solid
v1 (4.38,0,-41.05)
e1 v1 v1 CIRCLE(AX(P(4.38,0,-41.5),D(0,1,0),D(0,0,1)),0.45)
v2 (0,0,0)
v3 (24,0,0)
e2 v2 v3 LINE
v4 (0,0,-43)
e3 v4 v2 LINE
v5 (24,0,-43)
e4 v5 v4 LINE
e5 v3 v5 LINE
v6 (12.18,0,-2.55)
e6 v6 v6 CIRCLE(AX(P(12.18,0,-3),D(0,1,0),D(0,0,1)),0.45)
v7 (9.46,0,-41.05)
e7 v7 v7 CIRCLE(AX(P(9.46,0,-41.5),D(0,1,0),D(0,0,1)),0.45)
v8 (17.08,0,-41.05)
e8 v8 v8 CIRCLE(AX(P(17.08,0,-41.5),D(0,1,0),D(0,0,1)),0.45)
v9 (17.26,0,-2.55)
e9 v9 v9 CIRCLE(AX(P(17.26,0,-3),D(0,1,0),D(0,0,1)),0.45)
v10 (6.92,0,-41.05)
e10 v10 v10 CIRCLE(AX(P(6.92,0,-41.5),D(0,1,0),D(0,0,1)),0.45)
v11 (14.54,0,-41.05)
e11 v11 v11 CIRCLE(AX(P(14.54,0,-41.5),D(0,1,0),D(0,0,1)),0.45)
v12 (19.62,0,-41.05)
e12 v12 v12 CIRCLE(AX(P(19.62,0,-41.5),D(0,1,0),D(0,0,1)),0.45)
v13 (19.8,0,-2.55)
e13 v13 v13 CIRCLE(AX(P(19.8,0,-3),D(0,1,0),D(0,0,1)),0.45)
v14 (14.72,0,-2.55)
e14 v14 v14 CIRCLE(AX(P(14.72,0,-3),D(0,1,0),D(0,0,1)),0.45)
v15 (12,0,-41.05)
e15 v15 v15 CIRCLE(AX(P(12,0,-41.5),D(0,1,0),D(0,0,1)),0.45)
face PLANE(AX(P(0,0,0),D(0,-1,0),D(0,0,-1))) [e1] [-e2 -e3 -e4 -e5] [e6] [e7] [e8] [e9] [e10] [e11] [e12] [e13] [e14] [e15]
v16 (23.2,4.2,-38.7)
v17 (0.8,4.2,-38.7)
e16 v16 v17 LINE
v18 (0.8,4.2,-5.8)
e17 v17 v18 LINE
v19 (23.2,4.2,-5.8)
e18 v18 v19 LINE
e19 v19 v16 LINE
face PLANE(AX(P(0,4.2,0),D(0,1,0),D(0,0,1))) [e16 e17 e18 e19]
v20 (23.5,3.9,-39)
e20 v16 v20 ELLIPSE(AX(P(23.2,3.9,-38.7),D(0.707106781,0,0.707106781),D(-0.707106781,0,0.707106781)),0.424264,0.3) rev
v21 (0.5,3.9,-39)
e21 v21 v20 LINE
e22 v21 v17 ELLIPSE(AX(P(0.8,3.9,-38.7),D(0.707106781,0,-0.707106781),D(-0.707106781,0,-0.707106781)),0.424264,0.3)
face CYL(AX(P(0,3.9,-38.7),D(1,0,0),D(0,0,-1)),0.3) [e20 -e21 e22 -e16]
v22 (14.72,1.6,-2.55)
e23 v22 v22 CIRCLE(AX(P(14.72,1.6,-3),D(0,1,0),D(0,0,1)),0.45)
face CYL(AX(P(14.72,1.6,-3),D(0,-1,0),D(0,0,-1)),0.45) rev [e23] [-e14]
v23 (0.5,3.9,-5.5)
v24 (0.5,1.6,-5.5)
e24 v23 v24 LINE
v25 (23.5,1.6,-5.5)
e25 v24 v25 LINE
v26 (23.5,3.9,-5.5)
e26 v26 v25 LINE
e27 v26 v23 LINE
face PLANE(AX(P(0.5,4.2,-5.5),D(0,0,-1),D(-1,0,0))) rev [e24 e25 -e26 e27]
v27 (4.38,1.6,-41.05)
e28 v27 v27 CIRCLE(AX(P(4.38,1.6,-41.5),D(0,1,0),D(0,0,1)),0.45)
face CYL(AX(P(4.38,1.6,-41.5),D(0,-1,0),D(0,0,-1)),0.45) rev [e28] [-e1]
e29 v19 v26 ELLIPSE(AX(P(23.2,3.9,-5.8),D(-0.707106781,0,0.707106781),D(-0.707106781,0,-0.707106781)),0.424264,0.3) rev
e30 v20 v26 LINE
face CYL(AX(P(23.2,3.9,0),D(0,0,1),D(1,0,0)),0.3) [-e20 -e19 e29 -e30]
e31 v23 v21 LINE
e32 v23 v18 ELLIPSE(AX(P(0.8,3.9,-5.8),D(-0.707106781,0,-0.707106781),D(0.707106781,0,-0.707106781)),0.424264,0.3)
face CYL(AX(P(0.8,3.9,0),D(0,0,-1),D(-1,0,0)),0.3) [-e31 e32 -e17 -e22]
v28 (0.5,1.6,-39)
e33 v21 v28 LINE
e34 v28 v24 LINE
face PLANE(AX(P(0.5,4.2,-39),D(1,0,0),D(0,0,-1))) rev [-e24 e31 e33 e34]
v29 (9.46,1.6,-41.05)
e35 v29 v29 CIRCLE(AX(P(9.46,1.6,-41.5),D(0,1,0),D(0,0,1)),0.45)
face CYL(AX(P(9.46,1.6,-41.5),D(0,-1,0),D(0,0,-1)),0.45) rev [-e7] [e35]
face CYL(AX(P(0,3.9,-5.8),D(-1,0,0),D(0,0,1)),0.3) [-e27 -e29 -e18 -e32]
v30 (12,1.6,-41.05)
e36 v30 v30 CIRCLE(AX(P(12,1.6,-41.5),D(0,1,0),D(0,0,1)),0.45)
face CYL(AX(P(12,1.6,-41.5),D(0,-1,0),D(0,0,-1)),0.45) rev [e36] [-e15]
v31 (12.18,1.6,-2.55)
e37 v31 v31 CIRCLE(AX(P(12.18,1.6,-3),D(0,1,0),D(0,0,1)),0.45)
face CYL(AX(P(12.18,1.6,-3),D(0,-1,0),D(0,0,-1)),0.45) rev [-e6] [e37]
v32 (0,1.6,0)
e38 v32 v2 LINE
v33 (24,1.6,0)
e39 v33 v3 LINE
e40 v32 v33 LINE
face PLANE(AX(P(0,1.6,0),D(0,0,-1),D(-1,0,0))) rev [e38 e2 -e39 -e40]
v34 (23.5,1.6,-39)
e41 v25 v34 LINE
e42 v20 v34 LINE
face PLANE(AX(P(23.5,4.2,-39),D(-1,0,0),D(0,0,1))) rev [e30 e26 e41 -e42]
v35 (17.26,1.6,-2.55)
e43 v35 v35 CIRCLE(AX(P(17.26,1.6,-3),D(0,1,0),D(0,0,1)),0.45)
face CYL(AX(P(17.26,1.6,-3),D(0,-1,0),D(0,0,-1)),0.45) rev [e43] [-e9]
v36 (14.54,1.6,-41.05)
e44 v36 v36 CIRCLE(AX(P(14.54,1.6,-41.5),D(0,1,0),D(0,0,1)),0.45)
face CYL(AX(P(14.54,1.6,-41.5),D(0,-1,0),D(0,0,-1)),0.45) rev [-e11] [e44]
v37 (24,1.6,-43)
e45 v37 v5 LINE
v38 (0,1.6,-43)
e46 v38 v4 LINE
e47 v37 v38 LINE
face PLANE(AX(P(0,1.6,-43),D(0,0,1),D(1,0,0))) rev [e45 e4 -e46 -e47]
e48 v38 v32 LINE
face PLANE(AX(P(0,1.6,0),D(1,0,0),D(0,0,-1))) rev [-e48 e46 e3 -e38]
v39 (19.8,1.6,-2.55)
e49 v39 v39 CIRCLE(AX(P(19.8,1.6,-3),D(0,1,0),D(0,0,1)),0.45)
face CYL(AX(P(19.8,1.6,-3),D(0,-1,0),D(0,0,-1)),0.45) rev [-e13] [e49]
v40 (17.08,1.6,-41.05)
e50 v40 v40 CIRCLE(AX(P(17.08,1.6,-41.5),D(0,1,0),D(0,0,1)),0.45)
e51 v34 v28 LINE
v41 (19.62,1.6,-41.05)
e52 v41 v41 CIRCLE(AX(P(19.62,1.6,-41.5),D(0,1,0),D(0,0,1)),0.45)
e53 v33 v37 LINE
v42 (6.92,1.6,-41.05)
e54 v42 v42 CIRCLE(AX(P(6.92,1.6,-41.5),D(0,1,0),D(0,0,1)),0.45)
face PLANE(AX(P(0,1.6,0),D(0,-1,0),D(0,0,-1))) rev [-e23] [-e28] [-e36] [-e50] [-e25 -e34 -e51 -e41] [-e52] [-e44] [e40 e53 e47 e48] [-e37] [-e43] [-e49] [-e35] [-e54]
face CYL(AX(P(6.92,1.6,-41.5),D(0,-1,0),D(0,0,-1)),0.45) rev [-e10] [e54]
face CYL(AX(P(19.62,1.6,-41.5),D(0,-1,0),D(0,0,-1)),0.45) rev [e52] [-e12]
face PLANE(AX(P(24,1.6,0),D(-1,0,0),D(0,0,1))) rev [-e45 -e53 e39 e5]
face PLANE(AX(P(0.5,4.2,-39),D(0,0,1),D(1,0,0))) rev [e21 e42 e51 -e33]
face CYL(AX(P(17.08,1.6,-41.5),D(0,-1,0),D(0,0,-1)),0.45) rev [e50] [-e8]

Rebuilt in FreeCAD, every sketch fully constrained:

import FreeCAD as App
import Part
import Sketcher

V = App.Vector


def edges_at(feature, points):
    """Names of the edges that pass closest to the given points."""
    edges = feature.Shape.Edges
    near = lambda p: min(range(len(edges)), key=lambda i: edges[i].distToShape(Part.Vertex(*p))[0])
    return sorted({f"Edge{near(p) + 1}" for p in points})

doc = App.newDocument("Part")
body = doc.addObject("PartDesign::Body", "Body")

sketch1 = doc.addObject("Sketcher::SketchObject", "Sketch")
body.addObject(sketch1)
sketch1.AttachmentSupport = (doc.XZ_Plane, [""])
sketch1.MapMode = "FlatFace"
sketch1.addGeometry(Part.LineSegment(V(0, -43, 0), V(0, 0, 0)), False)
sketch1.addGeometry(Part.LineSegment(V(0, 0, 0), V(24, 0, 0)), False)
sketch1.addGeometry(Part.LineSegment(V(24, 0, 0), V(24, -43, 0)), False)
sketch1.addGeometry(Part.LineSegment(V(24, -43, 0), V(0, -43, 0)), False)
sketch1.addGeometry(Part.Circle(V(12.18, -3, 0), V(0, 0, 1), 0.45), False)
sketch1.addGeometry(Part.Circle(V(14.72, -3, 0), V(0, 0, 1), 0.45), False)
sketch1.addGeometry(Part.Circle(V(17.26, -3, 0), V(0, 0, 1), 0.45), False)
sketch1.addGeometry(Part.Circle(V(19.8, -3, 0), V(0, 0, 1), 0.45), False)
sketch1.addGeometry(Part.Circle(V(4.38, -41.5, 0), V(0, 0, 1), 0.45), False)
sketch1.addGeometry(Part.Circle(V(6.92, -41.5, 0), V(0, 0, 1), 0.45), False)
sketch1.addGeometry(Part.Circle(V(9.46, -41.5, 0), V(0, 0, 1), 0.45), False)
sketch1.addGeometry(Part.Circle(V(12, -41.5, 0), V(0, 0, 1), 0.45), False)
sketch1.addGeometry(Part.Circle(V(14.54, -41.5, 0), V(0, 0, 1), 0.45), False)
sketch1.addGeometry(Part.Circle(V(17.08, -41.5, 0), V(0, 0, 1), 0.45), False)
sketch1.addGeometry(Part.Circle(V(19.62, -41.5, 0), V(0, 0, 1), 0.45), False)
sketch1.addConstraint(Sketcher.Constraint("Coincident", 0, 2, 1, 1))
sketch1.addConstraint(Sketcher.Constraint("Coincident", 1, 2, 2, 1))
sketch1.addConstraint(Sketcher.Constraint("Coincident", 2, 2, 3, 1))
sketch1.addConstraint(Sketcher.Constraint("Coincident", 3, 2, 0, 1))
sketch1.addConstraint(Sketcher.Constraint("Vertical", 0))
sketch1.addConstraint(Sketcher.Constraint("Horizontal", 1))
sketch1.addConstraint(Sketcher.Constraint("Vertical", 2))
sketch1.addConstraint(Sketcher.Constraint("Horizontal", 3))
sketch1.addConstraint(Sketcher.Constraint("Coincident", 0, 2, -1, 1))
sketch1.addConstraint(Sketcher.Constraint("Equal", 4, 5))
sketch1.addConstraint(Sketcher.Constraint("Equal", 5, 6))
sketch1.addConstraint(Sketcher.Constraint("Equal", 6, 7))
sketch1.addConstraint(Sketcher.Constraint("Equal", 7, 8))
sketch1.addConstraint(Sketcher.Constraint("Equal", 8, 9))
sketch1.addConstraint(Sketcher.Constraint("Equal", 9, 10))
sketch1.addConstraint(Sketcher.Constraint("Equal", 10, 11))
sketch1.addConstraint(Sketcher.Constraint("Equal", 11, 12))
sketch1.addConstraint(Sketcher.Constraint("Equal", 12, 13))
sketch1.addConstraint(Sketcher.Constraint("Equal", 13, 14))
sketch1.addConstraint(Sketcher.Constraint("Horizontal", 4, 3, 5, 3))
sketch1.addConstraint(Sketcher.Constraint("Horizontal", 5, 3, 6, 3))
sketch1.addConstraint(Sketcher.Constraint("Horizontal", 6, 3, 7, 3))
sketch1.addConstraint(Sketcher.Constraint("Horizontal", 8, 3, 9, 3))
sketch1.addConstraint(Sketcher.Constraint("Horizontal", 9, 3, 10, 3))
sketch1.addConstraint(Sketcher.Constraint("Horizontal", 10, 3, 11, 3))
sketch1.addConstraint(Sketcher.Constraint("Horizontal", 11, 3, 12, 3))
sketch1.addConstraint(Sketcher.Constraint("Horizontal", 12, 3, 13, 3))
sketch1.addConstraint(Sketcher.Constraint("Horizontal", 13, 3, 14, 3))
sketch1.addConstraint(Sketcher.Constraint("Diameter", 4, 0.9))
sketch1.addConstraint(Sketcher.Constraint("DistanceX", 1, 1, 1, 2, 24.0))
sketch1.addConstraint(Sketcher.Constraint("DistanceY", 0, 1, 0, 2, 43.0))
sketch1.addConstraint(Sketcher.Constraint("DistanceY", 4, 3, -1, 1, 3.0))
sketch1.addConstraint(Sketcher.Constraint("DistanceX", -1, 1, 11, 3, 12.0))
sketch1.addConstraint(Sketcher.Constraint("DistanceX", -1, 1, 7, 3, 19.8))
sketch1.addConstraint(Sketcher.Constraint("DistanceY", 8, 3, -1, 1, 41.5))
sketch1.addConstraint(Sketcher.Constraint("DistanceX", 8, 3, 4, 3, 7.8))
sketch1.addConstraint(Sketcher.Constraint("DistanceX", 9, 3, 5, 3, 7.8))
sketch1.addConstraint(Sketcher.Constraint("DistanceX", 10, 3, 6, 3, 7.8))
sketch1.addConstraint(Sketcher.Constraint("DistanceX", 8, 3, 13, 3, 12.7))
sketch1.addConstraint(Sketcher.Constraint("DistanceX", 9, 3, 14, 3, 12.7))
sketch1.addConstraint(Sketcher.Constraint("DistanceX", -1, 1, 4, 3, 12.18))
sketch1.addConstraint(Sketcher.Constraint("DistanceX", -1, 1, 5, 3, 14.72))
sketch1.addConstraint(Sketcher.Constraint("DistanceX", -1, 1, 6, 3, 17.26))
sketch1.addConstraint(Sketcher.Constraint("DistanceX", -1, 1, 12, 3, 14.54))
pad1 = doc.addObject("PartDesign::Pad", "Pad")
body.addObject(pad1)
pad1.Profile = sketch1
pad1.Length = 1.6
pad1.Reversed = True

sketch2 = doc.addObject("Sketcher::SketchObject", "Sketch001")
body.addObject(sketch2)
sketch2.AttachmentSupport = (doc.XZ_Plane, [""])
sketch2.MapMode = "FlatFace"
sketch2.AttachmentOffset = App.Placement(V(0, 0, -1.6), App.Rotation())
sketch2.addGeometry(Part.LineSegment(V(0, -39, 0), V(0, -6, 0)), False)
sketch2.addGeometry(Part.LineSegment(V(0, -6, 0), V(24, -6, 0)), False)
sketch2.addGeometry(Part.LineSegment(V(24, -6, 0), V(24, -39, 0)), False)
sketch2.addGeometry(Part.LineSegment(V(24, -39, 0), V(0, -39, 0)), False)
sketch2.addConstraint(Sketcher.Constraint("Coincident", 0, 2, 1, 1))
sketch2.addConstraint(Sketcher.Constraint("Coincident", 1, 2, 2, 1))
sketch2.addConstraint(Sketcher.Constraint("Coincident", 2, 2, 3, 1))
sketch2.addConstraint(Sketcher.Constraint("Coincident", 3, 2, 0, 1))
sketch2.addConstraint(Sketcher.Constraint("Vertical", 0))
sketch2.addConstraint(Sketcher.Constraint("Horizontal", 1))
sketch2.addConstraint(Sketcher.Constraint("Vertical", 2))
sketch2.addConstraint(Sketcher.Constraint("Horizontal", 3))
sketch2.addConstraint(Sketcher.Constraint("DistanceX", 1, 1, 1, 2, 23.0))
sketch2.addConstraint(Sketcher.Constraint("DistanceY", 0, 1, 0, 2, 33.5))
sketch2.addConstraint(Sketcher.Constraint("DistanceY", 2, 2, -1, 1, 39.0))
sketch2.addConstraint(Sketcher.Constraint("DistanceX", -1, 1, 0, 2, 0.5))
pad2 = doc.addObject("PartDesign::Pad", "Pad001")
body.addObject(pad2)
pad2.Profile = sketch2
pad2.Length = 2.6
pad2.Reversed = True
doc.recompute()

fillet = doc.addObject("PartDesign::Fillet", "Fillet")
body.addObject(fillet)
fillet.Base = (pad2, edges_at(pad2, [
    (0.5, 4.2, -22.25),
    (12, 4.2, -5.5),
    (23.5, 4.2, -22.25),
    (12, 4.2, -39),
]))
fillet.Radius = 0.3

doc.recompute()
